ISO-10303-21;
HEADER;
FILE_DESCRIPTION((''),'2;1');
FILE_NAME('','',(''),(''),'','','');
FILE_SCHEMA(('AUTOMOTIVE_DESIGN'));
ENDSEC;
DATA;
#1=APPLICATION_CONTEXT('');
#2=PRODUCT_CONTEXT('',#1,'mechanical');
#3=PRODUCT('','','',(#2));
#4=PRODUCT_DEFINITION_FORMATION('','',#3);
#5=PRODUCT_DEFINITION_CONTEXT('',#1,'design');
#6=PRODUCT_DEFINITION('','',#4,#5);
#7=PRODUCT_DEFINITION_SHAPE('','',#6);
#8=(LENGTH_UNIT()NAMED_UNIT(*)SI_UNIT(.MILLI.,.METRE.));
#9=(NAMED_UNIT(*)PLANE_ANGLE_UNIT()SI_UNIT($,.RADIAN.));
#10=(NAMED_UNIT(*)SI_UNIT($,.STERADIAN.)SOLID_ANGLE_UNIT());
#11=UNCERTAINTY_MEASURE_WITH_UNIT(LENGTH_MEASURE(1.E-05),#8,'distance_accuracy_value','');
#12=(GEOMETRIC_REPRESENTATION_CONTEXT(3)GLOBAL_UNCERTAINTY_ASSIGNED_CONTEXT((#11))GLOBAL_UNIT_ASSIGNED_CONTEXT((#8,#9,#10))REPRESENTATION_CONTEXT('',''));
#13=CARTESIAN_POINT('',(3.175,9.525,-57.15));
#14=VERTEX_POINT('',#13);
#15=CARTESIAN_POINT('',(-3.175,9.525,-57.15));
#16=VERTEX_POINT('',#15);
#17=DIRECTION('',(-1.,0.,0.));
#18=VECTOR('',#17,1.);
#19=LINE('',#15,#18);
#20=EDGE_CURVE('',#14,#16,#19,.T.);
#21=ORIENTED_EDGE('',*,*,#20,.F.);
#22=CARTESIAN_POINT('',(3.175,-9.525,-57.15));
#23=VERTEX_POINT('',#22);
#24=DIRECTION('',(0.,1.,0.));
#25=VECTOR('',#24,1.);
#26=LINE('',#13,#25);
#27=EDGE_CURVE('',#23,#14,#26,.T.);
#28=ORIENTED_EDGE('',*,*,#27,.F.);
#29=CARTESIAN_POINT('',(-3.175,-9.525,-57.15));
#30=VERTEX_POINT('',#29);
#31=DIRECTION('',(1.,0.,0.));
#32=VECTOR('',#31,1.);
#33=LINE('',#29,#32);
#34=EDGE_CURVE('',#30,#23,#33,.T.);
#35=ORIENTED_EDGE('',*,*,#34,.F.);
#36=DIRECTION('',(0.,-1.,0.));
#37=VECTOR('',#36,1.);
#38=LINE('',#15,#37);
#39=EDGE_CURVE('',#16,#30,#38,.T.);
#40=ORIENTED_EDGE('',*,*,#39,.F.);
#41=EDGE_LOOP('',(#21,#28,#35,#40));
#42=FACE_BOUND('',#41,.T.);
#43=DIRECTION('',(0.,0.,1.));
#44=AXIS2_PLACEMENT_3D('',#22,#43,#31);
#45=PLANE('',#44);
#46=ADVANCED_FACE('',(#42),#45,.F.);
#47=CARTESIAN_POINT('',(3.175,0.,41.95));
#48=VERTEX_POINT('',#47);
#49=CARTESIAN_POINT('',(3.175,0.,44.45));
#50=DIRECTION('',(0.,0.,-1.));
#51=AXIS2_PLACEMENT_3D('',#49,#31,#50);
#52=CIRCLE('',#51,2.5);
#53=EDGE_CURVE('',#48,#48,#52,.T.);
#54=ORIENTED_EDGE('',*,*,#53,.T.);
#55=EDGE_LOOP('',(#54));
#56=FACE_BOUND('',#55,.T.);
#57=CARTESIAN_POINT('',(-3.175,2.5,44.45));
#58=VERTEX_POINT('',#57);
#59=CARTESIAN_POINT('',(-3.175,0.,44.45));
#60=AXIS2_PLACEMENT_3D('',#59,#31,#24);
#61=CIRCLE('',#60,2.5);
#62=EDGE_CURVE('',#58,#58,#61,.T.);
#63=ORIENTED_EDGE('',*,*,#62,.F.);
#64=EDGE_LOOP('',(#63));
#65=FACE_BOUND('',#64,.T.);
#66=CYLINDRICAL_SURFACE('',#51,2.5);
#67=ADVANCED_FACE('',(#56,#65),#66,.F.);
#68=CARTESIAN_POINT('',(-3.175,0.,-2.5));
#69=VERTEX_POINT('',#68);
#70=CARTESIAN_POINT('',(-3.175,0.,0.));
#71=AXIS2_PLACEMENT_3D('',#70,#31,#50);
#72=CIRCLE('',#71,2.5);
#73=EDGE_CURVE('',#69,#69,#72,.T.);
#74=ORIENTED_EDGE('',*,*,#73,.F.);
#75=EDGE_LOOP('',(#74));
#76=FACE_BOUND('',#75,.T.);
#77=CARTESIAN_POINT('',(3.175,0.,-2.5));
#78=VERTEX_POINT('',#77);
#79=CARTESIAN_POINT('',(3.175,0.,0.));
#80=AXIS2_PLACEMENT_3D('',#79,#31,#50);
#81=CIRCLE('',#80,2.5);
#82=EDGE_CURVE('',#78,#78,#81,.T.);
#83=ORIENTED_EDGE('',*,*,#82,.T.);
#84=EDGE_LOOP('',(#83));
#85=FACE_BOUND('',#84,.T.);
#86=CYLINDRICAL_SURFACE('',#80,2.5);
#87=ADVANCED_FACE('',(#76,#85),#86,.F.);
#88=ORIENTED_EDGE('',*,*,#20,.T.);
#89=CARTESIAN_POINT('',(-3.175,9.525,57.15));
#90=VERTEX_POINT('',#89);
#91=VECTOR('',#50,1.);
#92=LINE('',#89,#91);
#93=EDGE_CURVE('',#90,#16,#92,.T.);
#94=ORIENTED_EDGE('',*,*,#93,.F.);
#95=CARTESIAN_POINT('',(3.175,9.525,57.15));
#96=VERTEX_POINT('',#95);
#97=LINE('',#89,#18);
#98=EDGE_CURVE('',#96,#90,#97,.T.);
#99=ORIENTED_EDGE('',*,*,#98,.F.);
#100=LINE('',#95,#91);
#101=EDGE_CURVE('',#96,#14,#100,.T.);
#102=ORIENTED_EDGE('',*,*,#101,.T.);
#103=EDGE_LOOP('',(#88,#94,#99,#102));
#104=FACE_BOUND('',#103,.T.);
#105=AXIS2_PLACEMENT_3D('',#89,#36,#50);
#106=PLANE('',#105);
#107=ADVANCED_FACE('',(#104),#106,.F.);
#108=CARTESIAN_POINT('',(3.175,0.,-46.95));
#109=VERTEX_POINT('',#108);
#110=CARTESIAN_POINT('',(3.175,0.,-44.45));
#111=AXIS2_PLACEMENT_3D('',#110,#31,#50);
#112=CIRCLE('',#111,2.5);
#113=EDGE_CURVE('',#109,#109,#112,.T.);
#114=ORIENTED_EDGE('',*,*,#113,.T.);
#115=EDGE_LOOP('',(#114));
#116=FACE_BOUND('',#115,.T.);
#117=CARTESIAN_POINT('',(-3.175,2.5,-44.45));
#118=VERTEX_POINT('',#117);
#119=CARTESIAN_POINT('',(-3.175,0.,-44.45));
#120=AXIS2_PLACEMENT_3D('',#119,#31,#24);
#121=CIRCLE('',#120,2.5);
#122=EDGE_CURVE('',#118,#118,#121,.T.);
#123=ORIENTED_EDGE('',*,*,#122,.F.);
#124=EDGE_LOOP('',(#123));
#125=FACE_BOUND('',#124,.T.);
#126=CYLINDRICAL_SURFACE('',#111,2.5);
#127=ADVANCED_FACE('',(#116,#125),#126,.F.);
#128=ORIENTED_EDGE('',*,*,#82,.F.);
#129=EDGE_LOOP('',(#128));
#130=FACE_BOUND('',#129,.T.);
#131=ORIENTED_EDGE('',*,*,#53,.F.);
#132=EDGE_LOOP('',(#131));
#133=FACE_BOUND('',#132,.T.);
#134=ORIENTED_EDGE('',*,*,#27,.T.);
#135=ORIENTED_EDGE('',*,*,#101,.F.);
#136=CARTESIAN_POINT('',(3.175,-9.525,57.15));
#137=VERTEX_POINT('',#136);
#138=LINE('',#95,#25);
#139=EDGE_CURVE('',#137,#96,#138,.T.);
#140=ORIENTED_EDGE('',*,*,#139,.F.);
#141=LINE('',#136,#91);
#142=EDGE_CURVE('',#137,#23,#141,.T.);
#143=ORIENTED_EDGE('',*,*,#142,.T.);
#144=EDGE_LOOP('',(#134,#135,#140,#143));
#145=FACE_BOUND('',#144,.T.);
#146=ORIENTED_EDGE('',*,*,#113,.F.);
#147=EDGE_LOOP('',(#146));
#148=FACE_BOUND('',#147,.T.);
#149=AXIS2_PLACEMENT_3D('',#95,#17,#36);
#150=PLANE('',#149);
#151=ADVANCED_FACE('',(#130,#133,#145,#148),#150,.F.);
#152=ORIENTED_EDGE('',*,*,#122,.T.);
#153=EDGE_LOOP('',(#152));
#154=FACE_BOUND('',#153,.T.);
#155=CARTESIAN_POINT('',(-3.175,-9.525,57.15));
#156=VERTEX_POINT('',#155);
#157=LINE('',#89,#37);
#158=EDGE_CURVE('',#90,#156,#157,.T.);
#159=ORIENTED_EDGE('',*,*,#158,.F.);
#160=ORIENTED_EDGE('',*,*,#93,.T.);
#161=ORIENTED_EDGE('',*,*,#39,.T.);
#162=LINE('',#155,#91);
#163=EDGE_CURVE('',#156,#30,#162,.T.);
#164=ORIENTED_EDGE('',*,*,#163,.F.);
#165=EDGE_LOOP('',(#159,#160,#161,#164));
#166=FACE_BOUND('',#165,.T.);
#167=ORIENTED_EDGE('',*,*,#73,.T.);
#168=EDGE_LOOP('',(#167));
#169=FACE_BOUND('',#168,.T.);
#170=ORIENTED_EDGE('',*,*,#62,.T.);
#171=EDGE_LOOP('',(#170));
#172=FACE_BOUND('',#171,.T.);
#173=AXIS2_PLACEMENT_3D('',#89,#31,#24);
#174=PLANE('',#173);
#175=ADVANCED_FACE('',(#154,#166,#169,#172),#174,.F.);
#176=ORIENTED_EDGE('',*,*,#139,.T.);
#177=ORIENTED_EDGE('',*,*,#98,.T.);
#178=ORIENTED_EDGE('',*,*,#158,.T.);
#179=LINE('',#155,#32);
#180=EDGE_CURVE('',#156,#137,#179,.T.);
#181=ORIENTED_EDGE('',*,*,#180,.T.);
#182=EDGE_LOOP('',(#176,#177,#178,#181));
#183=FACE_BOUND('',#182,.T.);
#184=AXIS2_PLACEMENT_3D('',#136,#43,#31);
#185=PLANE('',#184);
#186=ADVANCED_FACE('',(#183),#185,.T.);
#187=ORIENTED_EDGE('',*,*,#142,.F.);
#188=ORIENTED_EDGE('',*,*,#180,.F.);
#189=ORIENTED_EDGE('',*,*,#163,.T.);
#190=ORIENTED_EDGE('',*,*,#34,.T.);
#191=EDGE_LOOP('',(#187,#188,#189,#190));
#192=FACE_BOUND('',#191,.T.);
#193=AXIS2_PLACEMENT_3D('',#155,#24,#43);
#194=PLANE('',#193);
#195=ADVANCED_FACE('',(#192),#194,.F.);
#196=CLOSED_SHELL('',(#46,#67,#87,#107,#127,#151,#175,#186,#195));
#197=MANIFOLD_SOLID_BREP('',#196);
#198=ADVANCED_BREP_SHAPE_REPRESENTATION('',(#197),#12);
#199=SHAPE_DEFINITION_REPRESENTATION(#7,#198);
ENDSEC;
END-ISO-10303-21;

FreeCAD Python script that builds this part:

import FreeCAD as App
import Part
import Sketcher
from FreeCAD import Vector
Q = App.Units.Quantity

doc = App.newDocument("Part")
params = doc.addObject("Spreadsheet::Sheet", "Params")
for row, (alias, value) in enumerate([
    ("sketch1_width", "0.25 in"),
    ("sketch1_height", "0.75 in"),
    ("pad1_length", "4.5 in"),
    ("hole_diameter", "5 mm"),
    ("hole_depth", "0.25 in"),
    ("hole2_diameter", "5 mm"),
], start=1):
    params.set(f"A{row}", alias)
    params.set(f"B{row}", "=" + value)
    params.setAlias(f"B{row}", alias)

body = doc.addObject("PartDesign::Body", "Body")

sketch1 = body.newObject("Sketcher::SketchObject", "Sketch")
sketch1.AttachmentSupport = (doc.getObject("XY_Plane"), [""])
sketch1.MapMode = "FlatFace"
sketch1.addGeometry([
    Part.LineSegment(Vector(-3, 10, 0), Vector(-3, -10, 0)),
    Part.LineSegment(Vector(-3, -10, 0), Vector(3, -10, 0)),
    Part.LineSegment(Vector(3, -10, 0), Vector(3, 10, 0)),
    Part.LineSegment(Vector(3, 10, 0), Vector(-3, 10, 0)),
], False)
sketch1.addConstraint([
    Sketcher.Constraint("Coincident", 0, 2, 1, 1),
    Sketcher.Constraint("Coincident", 1, 2, 2, 1),
    Sketcher.Constraint("Coincident", 2, 2, 3, 1),
    Sketcher.Constraint("Coincident", 3, 2, 0, 1),
    Sketcher.Constraint("Vertical", 0),
    Sketcher.Constraint("Horizontal", 1),
    Sketcher.Constraint("Vertical", 2),
    Sketcher.Constraint("Horizontal", 3),
    Sketcher.Constraint("Symmetric", 0, 2, 2, 2, -1, 1),
    Sketcher.Constraint("DistanceX", 1, 1, 1, 2, Q("0.25 in")),
    Sketcher.Constraint("DistanceY", 0, 2, 0, 1, Q("0.75 in")),
])
sketch1.setExpression("Constraints[9]", "Params.sketch1_width")
sketch1.setExpression("Constraints[10]", "Params.sketch1_height")
pad1 = body.newObject("PartDesign::Pad", "Pad")
pad1.Profile = sketch1
pad1.setExpression("Length", "Params.pad1_length")
pad1.Midplane = True

sketch2 = body.newObject("Sketcher::SketchObject", "Sketch001")
sketch2.AttachmentSupport = (doc.getObject("YZ_Plane"), [""])
sketch2.MapMode = "FlatFace"
sketch2.AttachmentOffset = App.Placement(Vector(0, 0, 0.125 * 25.4), App.Rotation())
sketch2.addGeometry([
    Part.Circle(Vector(0, 44.5, 0), Vector(0, 0, 1), 2.5),
    Part.Circle(Vector(0, -44.5, 0), Vector(0, 0, 1), 2.5),
], False)
sketch2.addConstraint([
    Sketcher.Constraint("Equal", 0, 1),
    Sketcher.Constraint("Symmetric", 0, 3, 1, 3, -1, 1),
    Sketcher.Constraint("PointOnObject", 0, 3, -2),
    Sketcher.Constraint("DistanceY", 1, 3, 0, 3, Q("3.5 in")),
    Sketcher.Constraint("Diameter", 0, 5.0),
])
doc.recompute()
hole = body.newObject("PartDesign::Hole", "Hole")
hole.Profile = sketch2
hole.ThreadType = "None"
hole.setExpression("Diameter", "Params.hole_diameter")
hole.DepthType = "Dimension"
hole.setExpression("Depth", "Params.hole_depth")
hole.DrillPoint = "Flat"

sketch3 = body.newObject("Sketcher::SketchObject", "Sketch002")
sketch3.AttachmentSupport = (doc.getObject("YZ_Plane"), [""])
sketch3.MapMode = "FlatFace"
sketch3.AttachmentOffset = App.Placement(Vector(0, 0, 0.125 * 25.4), App.Rotation())
sketch3.addGeometry(Part.Circle(Vector(0, 0, 0), Vector(0, 0, 1), 2.5), False)
sketch3.addConstraint([
    Sketcher.Constraint("Coincident", 0, 3, -1, 1),
    Sketcher.Constraint("Diameter", 0, 5.0),
])
doc.recompute()
hole2 = body.newObject("PartDesign::Hole", "Hole001")
hole2.Profile = sketch3
hole2.ThreadType = "None"
hole2.setExpression("Diameter", "Params.hole2_diameter")
hole2.DepthType = "ThroughAll"

doc.recompute()
